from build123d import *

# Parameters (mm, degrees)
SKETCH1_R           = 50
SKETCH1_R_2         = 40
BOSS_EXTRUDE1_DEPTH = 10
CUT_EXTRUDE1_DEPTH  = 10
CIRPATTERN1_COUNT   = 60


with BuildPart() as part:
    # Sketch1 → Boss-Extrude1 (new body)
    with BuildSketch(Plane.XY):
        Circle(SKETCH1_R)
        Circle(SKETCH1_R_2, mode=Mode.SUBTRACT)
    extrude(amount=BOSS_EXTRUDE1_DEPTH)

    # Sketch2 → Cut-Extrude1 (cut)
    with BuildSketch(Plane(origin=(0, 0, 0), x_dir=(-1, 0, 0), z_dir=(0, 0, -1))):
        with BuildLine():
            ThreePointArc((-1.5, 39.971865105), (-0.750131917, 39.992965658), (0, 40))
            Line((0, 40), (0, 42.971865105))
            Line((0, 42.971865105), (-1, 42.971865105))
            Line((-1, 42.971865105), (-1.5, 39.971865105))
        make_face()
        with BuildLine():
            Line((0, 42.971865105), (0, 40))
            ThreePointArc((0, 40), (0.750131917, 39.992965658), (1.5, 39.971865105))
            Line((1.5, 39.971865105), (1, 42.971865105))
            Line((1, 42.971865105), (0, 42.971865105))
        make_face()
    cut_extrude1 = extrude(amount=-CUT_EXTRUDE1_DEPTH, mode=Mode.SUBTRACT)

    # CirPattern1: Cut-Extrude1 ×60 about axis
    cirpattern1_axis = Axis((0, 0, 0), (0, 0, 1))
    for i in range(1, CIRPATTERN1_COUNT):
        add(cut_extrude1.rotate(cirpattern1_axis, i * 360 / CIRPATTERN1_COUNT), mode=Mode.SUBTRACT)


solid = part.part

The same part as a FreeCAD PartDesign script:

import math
import FreeCAD as App
import Part
import Sketcher
from FreeCAD import Vector
Q = App.Units.Quantity

doc = App.newDocument("Part")
body = doc.addObject("PartDesign::Body", "Body")

# Sketch on XY plane
sketch1 = body.newObject("Sketcher::SketchObject", "Sketch")
sketch1.AttachmentSupport = (doc.getObject("XY_Plane"), [""])
sketch1.MapMode = "FlatFace"
sketch1.addGeometry(Part.Circle(Vector(0, 0, 0), Vector(0, 0, 1), 50), False)
sketch1.addGeometry(Part.Circle(Vector(0, 0, 0), Vector(0, 0, 1), 40), False)
sketch1.addConstraint(Sketcher.Constraint("Coincident", 0, 3, -1, 1))
sketch1.addConstraint(Sketcher.Constraint("Coincident", 1, 3, -1, 1))
sketch1.addConstraint(Sketcher.Constraint("Diameter", 0, Q("100 mm")))
sketch1.addConstraint(Sketcher.Constraint("Diameter", 1, Q("80 mm")))
pad1 = body.newObject("PartDesign::Pad", "Pad")
pad1.Profile = sketch1
pad1.Length = 10

# Sketch on XY plane
sketch2 = body.newObject("Sketcher::SketchObject", "Sketch001")
sketch2.AttachmentSupport = (doc.getObject("XY_Plane"), [""])
sketch2.MapMode = "FlatFace"
sketch2.addGeometry(Part.ArcOfCircle(Part.Circle(Vector(0, 0, 0), Vector(0, 0, 1), 40), math.radians(87.85), math.radians(90)), False)
sketch2.addGeometry(Part.ArcOfCircle(Part.Circle(Vector(0, 0, 0), Vector(0, 0, 1), 40), math.radians(90), math.radians(92.15)), False)
sketch2.addGeometry(Part.LineSegment(Vector(-1.5, 40, 0), Vector(-1, 43, 0)), False)
sketch2.addGeometry(Part.LineSegment(Vector(-1, 43, 0), Vector(1, 43, 0)), False)
sketch2.addGeometry(Part.LineSegment(Vector(1, 43, 0), Vector(1.5, 40, 0)), False)
sketch2.addConstraint(Sketcher.Constraint("Tangent", 0, 2, 1, 1))
sketch2.addConstraint(Sketcher.Constraint("Coincident", 1, 2, 2, 1))
sketch2.addConstraint(Sketcher.Constraint("Coincident", 2, 2, 3, 1))
sketch2.addConstraint(Sketcher.Constraint("Coincident", 3, 2, 4, 1))
sketch2.addConstraint(Sketcher.Constraint("Coincident", 4, 2, 0, 1))
sketch2.addConstraint(Sketcher.Constraint("Horizontal", 3))
sketch2.addConstraint(Sketcher.Constraint("Coincident", 0, 3, -1, 1))
sketch2.addConstraint(Sketcher.Constraint("Equal", 0, 1))
sketch2.addConstraint(Sketcher.Constraint("PointOnObject", 0, 2, -2))
sketch2.addConstraint(Sketcher.Constraint("Horizontal", 1, 2, 4, 2))
sketch2.addConstraint(Sketcher.Constraint("Equal", 2, 4))
sketch2.addConstraint(Sketcher.Constraint("DistanceX", 3, 1, 3, 2, Q("2 mm")))
sketch2.addConstraint(Sketcher.Constraint("DistanceY", -1, 1, 0, 2, Q("40 mm")))
sketch2.addConstraint(Sketcher.Constraint("DistanceY", 1, 2, 2, 2, Q("3 mm")))
sketch2.addConstraint(Sketcher.Constraint("DistanceX", 1, 2, 4, 2, Q("3 mm")))
pocket1 = body.newObject("PartDesign::Pocket", "Pocket")
pocket1.Profile = sketch2
pocket1.Length = 10
pocket1.Reversed = True
doc.recompute()

polarpattern = body.newObject("PartDesign::PolarPattern", "PolarPattern")
polarpattern.Originals = [pocket1]
polarpattern.Axis = (doc.getObject("Z_Axis"), [""])
polarpattern.Angle = 360
polarpattern.Occurrences = 60
body.Tip = polarpattern

doc.recompute()
